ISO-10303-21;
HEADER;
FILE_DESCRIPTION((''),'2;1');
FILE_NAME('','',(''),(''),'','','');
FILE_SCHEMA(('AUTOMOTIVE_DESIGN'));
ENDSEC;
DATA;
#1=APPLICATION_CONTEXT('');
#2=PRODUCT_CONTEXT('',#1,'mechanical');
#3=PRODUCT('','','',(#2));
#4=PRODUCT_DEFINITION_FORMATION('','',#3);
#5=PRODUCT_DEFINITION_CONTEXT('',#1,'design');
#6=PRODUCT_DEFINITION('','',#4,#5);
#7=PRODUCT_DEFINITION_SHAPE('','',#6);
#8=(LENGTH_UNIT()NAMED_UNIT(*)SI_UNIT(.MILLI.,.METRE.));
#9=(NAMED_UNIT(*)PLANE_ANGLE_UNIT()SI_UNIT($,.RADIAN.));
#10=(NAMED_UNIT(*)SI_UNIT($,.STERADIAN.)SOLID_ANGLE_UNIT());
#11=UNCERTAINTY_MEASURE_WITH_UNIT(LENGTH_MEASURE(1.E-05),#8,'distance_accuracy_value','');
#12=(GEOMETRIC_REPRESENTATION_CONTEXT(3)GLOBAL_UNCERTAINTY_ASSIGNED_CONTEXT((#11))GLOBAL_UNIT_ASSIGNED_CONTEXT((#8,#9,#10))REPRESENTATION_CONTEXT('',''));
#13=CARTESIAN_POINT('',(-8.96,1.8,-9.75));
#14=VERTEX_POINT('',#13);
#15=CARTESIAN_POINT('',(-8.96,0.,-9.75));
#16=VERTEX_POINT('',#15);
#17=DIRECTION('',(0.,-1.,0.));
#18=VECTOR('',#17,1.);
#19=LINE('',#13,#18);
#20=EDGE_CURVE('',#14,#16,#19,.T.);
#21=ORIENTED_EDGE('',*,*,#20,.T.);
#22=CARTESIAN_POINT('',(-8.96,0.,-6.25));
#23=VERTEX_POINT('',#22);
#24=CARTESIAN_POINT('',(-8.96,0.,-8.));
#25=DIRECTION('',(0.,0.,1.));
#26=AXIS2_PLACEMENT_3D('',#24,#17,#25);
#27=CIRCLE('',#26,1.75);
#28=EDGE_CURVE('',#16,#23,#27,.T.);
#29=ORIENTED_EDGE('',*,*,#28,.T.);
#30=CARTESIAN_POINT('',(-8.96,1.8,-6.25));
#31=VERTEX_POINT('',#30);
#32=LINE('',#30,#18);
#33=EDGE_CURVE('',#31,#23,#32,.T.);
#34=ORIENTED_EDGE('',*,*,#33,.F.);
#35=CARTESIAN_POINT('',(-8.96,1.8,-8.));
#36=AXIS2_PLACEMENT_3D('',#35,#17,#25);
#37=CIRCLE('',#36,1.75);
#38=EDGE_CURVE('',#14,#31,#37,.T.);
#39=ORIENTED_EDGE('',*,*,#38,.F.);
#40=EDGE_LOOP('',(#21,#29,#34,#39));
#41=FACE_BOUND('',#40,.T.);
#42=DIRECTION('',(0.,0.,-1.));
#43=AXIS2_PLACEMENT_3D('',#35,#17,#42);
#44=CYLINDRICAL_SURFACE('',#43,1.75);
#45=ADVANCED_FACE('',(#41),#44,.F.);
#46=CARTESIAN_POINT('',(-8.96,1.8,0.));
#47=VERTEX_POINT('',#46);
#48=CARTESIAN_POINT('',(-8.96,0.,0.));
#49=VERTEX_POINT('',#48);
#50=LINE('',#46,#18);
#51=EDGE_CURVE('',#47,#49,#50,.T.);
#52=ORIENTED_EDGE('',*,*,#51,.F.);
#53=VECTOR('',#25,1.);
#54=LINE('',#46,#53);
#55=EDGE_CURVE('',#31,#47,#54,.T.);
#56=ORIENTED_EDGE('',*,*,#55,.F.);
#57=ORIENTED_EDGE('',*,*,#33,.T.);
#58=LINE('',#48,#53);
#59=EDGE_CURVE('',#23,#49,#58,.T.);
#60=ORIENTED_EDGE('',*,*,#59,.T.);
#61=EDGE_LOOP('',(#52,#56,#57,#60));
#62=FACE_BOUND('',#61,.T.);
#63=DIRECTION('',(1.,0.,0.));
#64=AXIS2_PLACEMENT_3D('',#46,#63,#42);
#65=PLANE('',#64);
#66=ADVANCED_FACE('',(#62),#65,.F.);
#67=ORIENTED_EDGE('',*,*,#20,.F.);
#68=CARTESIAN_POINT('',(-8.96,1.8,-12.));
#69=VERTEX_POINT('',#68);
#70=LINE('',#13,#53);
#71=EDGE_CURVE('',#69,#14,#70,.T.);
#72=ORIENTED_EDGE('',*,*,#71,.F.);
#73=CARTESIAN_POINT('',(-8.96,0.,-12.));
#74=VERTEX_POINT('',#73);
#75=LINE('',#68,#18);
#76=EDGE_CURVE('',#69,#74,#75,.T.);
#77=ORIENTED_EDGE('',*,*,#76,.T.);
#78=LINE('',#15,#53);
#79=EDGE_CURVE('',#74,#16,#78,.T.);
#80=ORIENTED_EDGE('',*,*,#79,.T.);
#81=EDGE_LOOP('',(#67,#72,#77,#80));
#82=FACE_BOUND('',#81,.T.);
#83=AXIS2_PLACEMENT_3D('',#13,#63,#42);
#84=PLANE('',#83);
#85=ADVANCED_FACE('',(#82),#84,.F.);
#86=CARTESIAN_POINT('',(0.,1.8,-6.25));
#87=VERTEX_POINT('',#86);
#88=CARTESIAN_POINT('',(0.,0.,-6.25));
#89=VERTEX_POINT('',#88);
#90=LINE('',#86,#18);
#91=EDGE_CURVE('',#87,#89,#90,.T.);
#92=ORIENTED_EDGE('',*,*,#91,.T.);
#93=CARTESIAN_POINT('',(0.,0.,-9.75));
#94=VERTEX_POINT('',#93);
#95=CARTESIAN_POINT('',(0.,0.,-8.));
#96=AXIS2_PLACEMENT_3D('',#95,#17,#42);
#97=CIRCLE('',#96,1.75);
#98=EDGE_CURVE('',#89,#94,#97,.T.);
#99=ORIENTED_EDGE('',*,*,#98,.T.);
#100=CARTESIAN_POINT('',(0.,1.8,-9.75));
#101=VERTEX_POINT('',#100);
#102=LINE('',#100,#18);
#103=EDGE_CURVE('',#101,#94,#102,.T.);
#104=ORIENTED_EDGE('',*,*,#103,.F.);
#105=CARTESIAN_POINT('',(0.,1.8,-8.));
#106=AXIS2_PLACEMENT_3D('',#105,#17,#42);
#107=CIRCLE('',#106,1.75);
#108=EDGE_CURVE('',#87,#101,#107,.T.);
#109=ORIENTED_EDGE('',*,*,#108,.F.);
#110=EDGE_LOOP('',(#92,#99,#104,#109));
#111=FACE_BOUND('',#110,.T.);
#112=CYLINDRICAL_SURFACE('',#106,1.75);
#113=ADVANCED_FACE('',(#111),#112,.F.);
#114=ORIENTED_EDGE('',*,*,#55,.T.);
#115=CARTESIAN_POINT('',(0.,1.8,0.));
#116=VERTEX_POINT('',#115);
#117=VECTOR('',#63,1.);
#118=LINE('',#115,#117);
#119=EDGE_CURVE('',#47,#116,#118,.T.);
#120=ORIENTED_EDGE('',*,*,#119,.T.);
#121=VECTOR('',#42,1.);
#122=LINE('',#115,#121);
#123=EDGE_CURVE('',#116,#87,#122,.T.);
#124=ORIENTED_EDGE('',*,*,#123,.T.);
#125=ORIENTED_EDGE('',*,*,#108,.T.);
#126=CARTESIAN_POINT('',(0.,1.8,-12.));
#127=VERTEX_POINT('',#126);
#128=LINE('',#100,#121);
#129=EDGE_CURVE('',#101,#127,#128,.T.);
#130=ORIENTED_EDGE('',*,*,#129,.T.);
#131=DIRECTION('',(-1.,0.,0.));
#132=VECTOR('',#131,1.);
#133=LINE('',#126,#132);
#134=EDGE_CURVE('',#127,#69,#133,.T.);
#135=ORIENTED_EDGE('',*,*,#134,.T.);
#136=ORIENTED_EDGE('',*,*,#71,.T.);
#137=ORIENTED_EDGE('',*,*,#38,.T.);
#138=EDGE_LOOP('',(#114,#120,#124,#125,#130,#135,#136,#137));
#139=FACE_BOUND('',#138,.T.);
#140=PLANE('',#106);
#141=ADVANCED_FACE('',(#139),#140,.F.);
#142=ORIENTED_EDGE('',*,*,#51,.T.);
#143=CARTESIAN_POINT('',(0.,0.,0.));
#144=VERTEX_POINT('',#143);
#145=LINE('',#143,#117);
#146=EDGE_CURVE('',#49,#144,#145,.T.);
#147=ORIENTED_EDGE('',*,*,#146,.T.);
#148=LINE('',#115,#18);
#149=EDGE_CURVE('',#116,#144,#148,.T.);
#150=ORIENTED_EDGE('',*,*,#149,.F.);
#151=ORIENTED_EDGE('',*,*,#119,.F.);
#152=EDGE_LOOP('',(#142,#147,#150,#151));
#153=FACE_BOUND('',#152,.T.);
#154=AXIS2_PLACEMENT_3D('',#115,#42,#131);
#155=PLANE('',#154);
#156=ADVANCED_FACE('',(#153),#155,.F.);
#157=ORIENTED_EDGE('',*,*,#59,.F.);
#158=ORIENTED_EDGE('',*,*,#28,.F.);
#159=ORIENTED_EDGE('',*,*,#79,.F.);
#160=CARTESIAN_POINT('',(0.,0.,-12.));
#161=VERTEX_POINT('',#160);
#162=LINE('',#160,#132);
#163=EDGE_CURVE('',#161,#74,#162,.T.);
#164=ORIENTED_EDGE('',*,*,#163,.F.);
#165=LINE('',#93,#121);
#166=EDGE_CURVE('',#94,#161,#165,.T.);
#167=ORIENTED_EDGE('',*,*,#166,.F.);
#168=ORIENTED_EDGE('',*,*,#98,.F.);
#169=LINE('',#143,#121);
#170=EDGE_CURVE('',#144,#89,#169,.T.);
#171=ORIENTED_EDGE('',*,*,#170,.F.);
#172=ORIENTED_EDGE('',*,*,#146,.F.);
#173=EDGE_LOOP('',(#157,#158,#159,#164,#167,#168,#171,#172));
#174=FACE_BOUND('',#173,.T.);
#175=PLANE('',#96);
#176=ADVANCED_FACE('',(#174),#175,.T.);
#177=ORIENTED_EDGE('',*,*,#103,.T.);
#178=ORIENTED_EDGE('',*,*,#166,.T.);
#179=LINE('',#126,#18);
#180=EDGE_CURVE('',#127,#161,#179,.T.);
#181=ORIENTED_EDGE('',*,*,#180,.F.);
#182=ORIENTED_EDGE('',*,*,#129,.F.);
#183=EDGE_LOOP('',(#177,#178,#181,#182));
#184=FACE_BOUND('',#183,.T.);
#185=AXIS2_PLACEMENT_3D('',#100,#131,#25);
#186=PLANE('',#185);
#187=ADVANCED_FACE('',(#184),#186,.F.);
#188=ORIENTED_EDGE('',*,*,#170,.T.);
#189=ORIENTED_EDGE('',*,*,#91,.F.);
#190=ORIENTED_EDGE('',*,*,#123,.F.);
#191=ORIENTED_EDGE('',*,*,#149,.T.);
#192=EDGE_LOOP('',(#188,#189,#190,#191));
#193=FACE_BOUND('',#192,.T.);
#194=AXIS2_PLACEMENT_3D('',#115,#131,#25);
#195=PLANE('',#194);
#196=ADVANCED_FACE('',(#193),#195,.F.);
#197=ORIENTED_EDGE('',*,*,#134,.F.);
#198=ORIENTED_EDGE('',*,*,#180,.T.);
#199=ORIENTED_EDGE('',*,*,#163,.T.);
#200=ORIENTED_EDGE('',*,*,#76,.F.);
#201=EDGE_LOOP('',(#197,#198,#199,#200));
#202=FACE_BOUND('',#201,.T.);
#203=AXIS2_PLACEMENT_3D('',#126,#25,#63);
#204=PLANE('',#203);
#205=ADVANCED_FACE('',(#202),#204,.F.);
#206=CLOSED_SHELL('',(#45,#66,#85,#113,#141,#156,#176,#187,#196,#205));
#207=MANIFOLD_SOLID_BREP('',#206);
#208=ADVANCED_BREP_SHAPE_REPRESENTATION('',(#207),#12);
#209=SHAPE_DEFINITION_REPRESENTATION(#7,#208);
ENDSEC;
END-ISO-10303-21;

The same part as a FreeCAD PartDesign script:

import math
import FreeCAD as App
import Part
import Sketcher

doc = App.newDocument("Part")
params = doc.addObject("Spreadsheet::Sheet", "Params")
for row, (alias, value) in enumerate([
    ("sketch1_radius", "1.75 mm"),
    ("sketch1_width", "8.96 mm"),
    ("pad1_length", "1.8 mm"),
], start=1):
    params.set(f"A{row}", alias)
    params.set(f"B{row}", "=" + value)
    params.setAlias(f"B{row}", alias)

body = doc.addObject("PartDesign::Body", "Body")

sketch1 = doc.addObject("Sketcher::SketchObject", "Sketch")
body.addObject(sketch1)
sketch1.AttachmentSupport = (doc.XZ_Plane, [""])
sketch1.MapMode = "FlatFace"
sketch1.addGeometry([
    Part.LineSegment(App.Vector(-9, 0, 0), App.Vector(0, 0, 0)),
    Part.LineSegment(App.Vector(0, 0, 0), App.Vector(0, -6.2, 0)),
    Part.ArcOfCircle(Part.Circle(App.Vector(0, -8, 0), App.Vector(0, 0, 1), 1.8), math.radians(90), math.radians(270)),
    Part.LineSegment(App.Vector(0, -9.8, 0), App.Vector(0, -12, 0)),
    Part.LineSegment(App.Vector(0, -12, 0), App.Vector(-9, -12, 0)),
    Part.LineSegment(App.Vector(-9, -12, 0), App.Vector(-9, -9.8, 0)),
    Part.ArcOfCircle(Part.Circle(App.Vector(-9, -8, 0), App.Vector(0, 0, 1), 1.8), math.radians(-90), math.radians(90)),
    Part.LineSegment(App.Vector(-9, -6.2, 0), App.Vector(-9, 0, 0)),
], False)
sketch1.addConstraint([
    Sketcher.Constraint("Coincident", 0, 2, 1, 1),
    Sketcher.Constraint("Coincident", 1, 2, 2, 1),
    Sketcher.Constraint("Coincident", 2, 2, 3, 1),
    Sketcher.Constraint("Coincident", 3, 2, 4, 1),
    Sketcher.Constraint("Coincident", 4, 2, 5, 1),
    Sketcher.Constraint("Coincident", 5, 2, 6, 1),
    Sketcher.Constraint("Coincident", 6, 2, 7, 1),
    Sketcher.Constraint("Coincident", 7, 2, 0, 1),
    Sketcher.Constraint("Horizontal", 0),
    Sketcher.Constraint("Vertical", 1),
    Sketcher.Constraint("Vertical", 3),
    Sketcher.Constraint("Horizontal", 4),
    Sketcher.Constraint("Vertical", 5),
    Sketcher.Constraint("Vertical", 7),
    Sketcher.Constraint("Coincident", 0, 2, -1, 1),
    Sketcher.Constraint("Equal", 2, 6),
    Sketcher.Constraint("PointOnObject", 2, 3, -2),
    Sketcher.Constraint("PointOnObject", 2, 2, -2),
    Sketcher.Constraint("Horizontal", 2, 3, 6, 3),
    Sketcher.Constraint("Vertical", 6, 3, 4, 2),
    Sketcher.Constraint("Vertical", 5, 2, 6, 2),
    Sketcher.Constraint("Radius", 2, 1.75),
    Sketcher.Constraint("DistanceY", 2, 3, -1, 1, 8.0),
    Sketcher.Constraint("DistanceY", 3, 2, -1, 1, 12.0),
    Sketcher.Constraint("DistanceX", 0, 1, 0, 2, 8.96),
])
sketch1.setExpression("Constraints[21]", "Params.sketch1_radius")
sketch1.setExpression("Constraints[24]", "Params.sketch1_width")
pad1 = doc.addObject("PartDesign::Pad", "Pad")
body.addObject(pad1)
pad1.Profile = sketch1
pad1.setExpression("Length", "Params.pad1_length")
pad1.Reversed = True

doc.recompute()
